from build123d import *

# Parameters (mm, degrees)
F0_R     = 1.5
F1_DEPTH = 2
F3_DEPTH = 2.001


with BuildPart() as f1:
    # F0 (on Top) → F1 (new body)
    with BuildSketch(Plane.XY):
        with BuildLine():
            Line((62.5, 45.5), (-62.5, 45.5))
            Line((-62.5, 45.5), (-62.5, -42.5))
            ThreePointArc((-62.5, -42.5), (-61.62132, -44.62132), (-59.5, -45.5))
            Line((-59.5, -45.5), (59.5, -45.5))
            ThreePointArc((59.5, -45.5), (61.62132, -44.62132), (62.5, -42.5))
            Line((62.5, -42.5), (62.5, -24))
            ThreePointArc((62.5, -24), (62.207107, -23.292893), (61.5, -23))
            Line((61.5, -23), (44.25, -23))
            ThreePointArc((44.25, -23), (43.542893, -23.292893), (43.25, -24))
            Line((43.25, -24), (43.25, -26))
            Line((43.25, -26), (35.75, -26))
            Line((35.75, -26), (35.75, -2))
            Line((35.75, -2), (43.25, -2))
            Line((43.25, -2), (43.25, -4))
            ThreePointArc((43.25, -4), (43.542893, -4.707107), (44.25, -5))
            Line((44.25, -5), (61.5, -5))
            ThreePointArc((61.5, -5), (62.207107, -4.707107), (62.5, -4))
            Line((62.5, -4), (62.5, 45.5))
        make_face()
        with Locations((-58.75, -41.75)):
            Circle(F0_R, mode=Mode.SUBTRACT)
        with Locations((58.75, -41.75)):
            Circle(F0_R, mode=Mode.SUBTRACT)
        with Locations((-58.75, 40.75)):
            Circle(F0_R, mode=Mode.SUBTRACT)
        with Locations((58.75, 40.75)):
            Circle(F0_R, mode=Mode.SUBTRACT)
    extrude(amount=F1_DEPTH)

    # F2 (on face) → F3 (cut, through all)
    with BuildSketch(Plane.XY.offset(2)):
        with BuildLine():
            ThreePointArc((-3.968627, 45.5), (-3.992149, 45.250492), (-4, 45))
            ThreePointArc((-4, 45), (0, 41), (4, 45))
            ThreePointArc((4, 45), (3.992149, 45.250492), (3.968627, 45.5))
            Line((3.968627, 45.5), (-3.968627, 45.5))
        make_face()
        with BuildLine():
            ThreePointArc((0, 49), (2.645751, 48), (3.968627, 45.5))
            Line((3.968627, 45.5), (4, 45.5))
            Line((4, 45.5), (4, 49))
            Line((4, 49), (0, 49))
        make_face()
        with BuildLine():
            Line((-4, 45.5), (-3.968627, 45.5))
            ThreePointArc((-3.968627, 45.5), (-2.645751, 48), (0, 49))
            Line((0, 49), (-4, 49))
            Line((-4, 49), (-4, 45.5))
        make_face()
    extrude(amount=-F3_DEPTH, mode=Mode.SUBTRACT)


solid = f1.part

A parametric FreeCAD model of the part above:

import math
import FreeCAD as App
import Part
import Sketcher
from FreeCAD import Vector

doc = App.newDocument("Part")
body = doc.addObject("PartDesign::Body", "Body")

# Sketch on XY plane
sketch1 = body.newObject("Sketcher::SketchObject", "Sketch")
sketch1.AttachmentSupport = (doc.getObject("XY_Plane"), [""])
sketch1.MapMode = "FlatFace"
sketch1.addGeometry([
    Part.LineSegment(Vector(62.5, 45.5, 0), Vector(-62.5, 45.5, 0)),  # 0
    Part.LineSegment(Vector(-62.5, 45.5, 0), Vector(-62.5, -42.5, 0)),  # 1
    Part.ArcOfCircle(Part.Circle(Vector(-59.5, -42.5, 0), Vector(0, 0, 1), 3), math.radians(-180), math.radians(-90)),  # 2
    Part.LineSegment(Vector(-59.5, -45.5, 0), Vector(59.5, -45.5, 0)),  # 3
    Part.ArcOfCircle(Part.Circle(Vector(59.5, -42.5, 0), Vector(0, 0, 1), 3), math.radians(-90), math.radians(0)),  # 4
    Part.LineSegment(Vector(62.5, -42.5, 0), Vector(62.5, -24, 0)),  # 5
    Part.ArcOfCircle(Part.Circle(Vector(61.5, -24, 0), Vector(0, 0, 1), 1), math.radians(0), math.radians(90)),  # 6
    Part.LineSegment(Vector(61.5, -23, 0), Vector(44.2, -23, 0)),  # 7
    Part.ArcOfCircle(Part.Circle(Vector(44.2, -24, 0), Vector(0, 0, 1), 1), math.radians(90), math.radians(180)),  # 8
    Part.LineSegment(Vector(43.2, -24, 0), Vector(43.2, -26, 0)),  # 9
    Part.LineSegment(Vector(43.2, -26, 0), Vector(35.8, -26, 0)),  # 10
    Part.LineSegment(Vector(35.8, -26, 0), Vector(35.8, -2, 0)),  # 11
    Part.LineSegment(Vector(35.8, -2, 0), Vector(43.2, -2, 0)),  # 12
    Part.LineSegment(Vector(43.2, -2, 0), Vector(43.2, -4, 0)),  # 13
    Part.ArcOfCircle(Part.Circle(Vector(44.2, -4, 0), Vector(0, 0, 1), 1), math.radians(180), math.radians(270)),  # 14
    Part.LineSegment(Vector(44.2, -5, 0), Vector(61.5, -5, 0)),  # 15
    Part.ArcOfCircle(Part.Circle(Vector(61.5, -4, 0), Vector(0, 0, 1), 1), math.radians(-90), math.radians(0)),  # 16
    Part.LineSegment(Vector(62.5, -4, 0), Vector(62.5, 45.5, 0)),  # 17
    Part.Circle(Vector(-58.8, -41.8, 0), Vector(0, 0, 1), 1.5),  # 18
    Part.Circle(Vector(58.8, -41.8, 0), Vector(0, 0, 1), 1.5),  # 19
    Part.Circle(Vector(-58.8, 40.8, 0), Vector(0, 0, 1), 1.5),  # 20
    Part.Circle(Vector(58.8, 40.8, 0), Vector(0, 0, 1), 1.5),  # 21
], False)
sketch1.addConstraint([
    Sketcher.Constraint("Coincident", 0, 2, 1, 1),
    Sketcher.Constraint("Tangent", 1, 2, 2, 1),
    Sketcher.Constraint("Tangent", 2, 2, 3, 1),
    Sketcher.Constraint("Tangent", 3, 2, 4, 1),
    Sketcher.Constraint("Tangent", 4, 2, 5, 1),
    Sketcher.Constraint("Tangent", 5, 2, 6, 1),
    Sketcher.Constraint("Tangent", 6, 2, 7, 1),
    Sketcher.Constraint("Tangent", 7, 2, 8, 1),
    Sketcher.Constraint("Tangent", 8, 2, 9, 1),
    Sketcher.Constraint("Coincident", 9, 2, 10, 1),
    Sketcher.Constraint("Coincident", 10, 2, 11, 1),
    Sketcher.Constraint("Coincident", 11, 2, 12, 1),
    Sketcher.Constraint("Coincident", 12, 2, 13, 1),
    Sketcher.Constraint("Tangent", 13, 2, 14, 1),
    Sketcher.Constraint("Tangent", 14, 2, 15, 1),
    Sketcher.Constraint("Tangent", 15, 2, 16, 1),
    Sketcher.Constraint("Tangent", 16, 2, 17, 1),
    Sketcher.Constraint("Coincident", 17, 2, 0, 1),
    Sketcher.Constraint("Horizontal", 0),
    Sketcher.Constraint("Vertical", 1),
    Sketcher.Constraint("Horizontal", 3),
    Sketcher.Constraint("Vertical", 5),
    Sketcher.Constraint("Horizontal", 7),
    Sketcher.Constraint("Vertical", 9),
    Sketcher.Constraint("Horizontal", 10),
    Sketcher.Constraint("Vertical", 11),
    Sketcher.Constraint("Horizontal", 12),
    Sketcher.Constraint("Vertical", 13),
    Sketcher.Constraint("Horizontal", 15),
    Sketcher.Constraint("Vertical", 17),
    Sketcher.Constraint("Equal", 2, 4),
    Sketcher.Constraint("Equal", 6, 8),
    Sketcher.Constraint("Equal", 8, 14),
    Sketcher.Constraint("Equal", 14, 16),
    Sketcher.Constraint("Equal", 18, 19),
    Sketcher.Constraint("Equal", 19, 20),
    Sketcher.Constraint("Equal", 20, 21),
    Sketcher.Constraint("Symmetric", 18, 3, 19, 3, -2),
    Sketcher.Constraint("Symmetric", 20, 3, 21, 3, -2),
    Sketcher.Constraint("Vertical", 8, 3, 14, 3),
    Sketcher.Constraint("Vertical", 6, 3, 16, 3),
    Sketcher.Constraint("Vertical", 18, 3, 20, 3),
    Sketcher.Constraint("Equal", 9, 13),
    Sketcher.Constraint("Diameter", 18, 3.0),
    Sketcher.Constraint("Radius", 2, 3.000001),
    Sketcher.Constraint("Radius", 6, 0.999999),
    Sketcher.Constraint("DistanceX", 0, 2, 0, 1, 125.0),
    Sketcher.Constraint("DistanceY", 1, 2, 1, 1, 88.0),
    Sketcher.Constraint("DistanceY", 9, 2, 9, 1, 2.0),
    Sketcher.Constraint("DistanceY", 11, 1, 11, 2, 24.0),
    Sketcher.Constraint("DistanceX", 10, 2, 10, 1, 7.5),
    Sketcher.Constraint("DistanceY", 5, 1, 5, 2, 18.5),
    Sketcher.Constraint("DistanceY", 6, 3, -1, 1, 23.999999),
    Sketcher.Constraint("DistanceX", 18, 3, 8, 3, 102.999999),
    Sketcher.Constraint("DistanceX", 7, 2, 7, 1, 17.25),
    Sketcher.Constraint("DistanceX", 2, 3, -1, 1, 59.499999),
    Sketcher.Constraint("DistanceY", 18, 3, 20, 3, 82.5),
    Sketcher.Constraint("DistanceY", 18, 3, -1, 1, 41.75),
])
pad1 = body.newObject("PartDesign::Pad", "Pad")
pad1.Profile = sketch1
pad1.Length = 2

# Sketch on XY plane
sketch2 = body.newObject("Sketcher::SketchObject", "Sketch001")
sketch2.AttachmentSupport = (doc.getObject("XY_Plane"), [""])
sketch2.MapMode = "FlatFace"
sketch2.AttachmentOffset = App.Placement(Vector(0, 0, 2), App.Rotation())
sketch2.addGeometry([
    Part.ArcOfCircle(Part.Circle(Vector(0, 45, 0), Vector(0, 0, 1), 4), math.radians(172.82), math.radians(180)),  # 0
    Part.ArcOfCircle(Part.Circle(Vector(0, 45, 0), Vector(0, 0, 1), 4), math.radians(180), math.radians(360)),  # 1
    Part.ArcOfCircle(Part.Circle(Vector(0, 45, 0), Vector(0, 0, 1), 4), math.radians(0), math.radians(7.18)),  # 2
    Part.LineSegment(Vector(3.969, 45.5, 0), Vector(-3.969, 45.5, 0)),  # 3
    Part.ArcOfCircle(Part.Circle(Vector(0, 45, 0), Vector(0, 0, 1), 4), math.radians(7), math.radians(90)),  # 4
    Part.LineSegment(Vector(3.969, 45.5, 0), Vector(4, 45.5, 0)),  # 5
    Part.LineSegment(Vector(4, 45.5, 0), Vector(4, 49, 0)),  # 6
    Part.LineSegment(Vector(4, 49, 0), Vector(0, 49, 0)),  # 7
    Part.LineSegment(Vector(-4, 45.5, 0), Vector(-3.969, 45.5, 0)),  # 8
    Part.ArcOfCircle(Part.Circle(Vector(0, 45, 0), Vector(0, 0, 1), 4), math.radians(90), math.radians(173)),  # 9
    Part.LineSegment(Vector(0, 49, 0), Vector(-4, 49, 0)),  # 10
    Part.LineSegment(Vector(-4, 49, 0), Vector(-4, 45.5, 0)),  # 11
], False)
sketch2.addConstraint([
    Sketcher.Constraint("Tangent", 0, 2, 1, 1),
    Sketcher.Constraint("Tangent", 1, 2, 2, 1),
    Sketcher.Constraint("Coincident", 2, 2, 3, 1),
    Sketcher.Constraint("Coincident", 3, 2, 0, 1),
    Sketcher.Constraint("Coincident", 4, 1, 5, 1),
    Sketcher.Constraint("Coincident", 5, 2, 6, 1),
    Sketcher.Constraint("Coincident", 6, 2, 7, 1),
    Sketcher.Constraint("Tangent", 7, 2, 4, 2),
    Sketcher.Constraint("Coincident", 8, 2, 9, 2),
    Sketcher.Constraint("Tangent", 9, 1, 10, 1),
    Sketcher.Constraint("Coincident", 10, 2, 11, 1),
    Sketcher.Constraint("Coincident", 11, 2, 8, 1),
    Sketcher.Constraint("Horizontal", 3),
    Sketcher.Constraint("Horizontal", 5),
    Sketcher.Constraint("Vertical", 6),
    Sketcher.Constraint("Horizontal", 7),
    Sketcher.Constraint("Horizontal", 8),
    Sketcher.Constraint("Horizontal", 10),
    Sketcher.Constraint("Vertical", 11),
    Sketcher.Constraint("Coincident", 4, 3, 1, 3),
    Sketcher.Constraint("Coincident", 9, 3, 1, 3),
    Sketcher.Constraint("Coincident", 4, 1, 2, 2),
    Sketcher.Constraint("Coincident", 8, 2, 3, 2),
    Sketcher.Constraint("Equal", 0, 2),
    Sketcher.Constraint("Equal", 1, 4),
    Sketcher.Constraint("Symmetric", 0, 2, 1, 2, -2),
    Sketcher.Constraint("Horizontal", 9, 3, 0, 2),
    Sketcher.Constraint("Vertical", 1, 2, 5, 2),
    Sketcher.Constraint("Vertical", 0, 2, 10, 2),
    Sketcher.Constraint("Radius", 1, 4.0),
    Sketcher.Constraint("DistanceY", 6, 1, 6, 2, 3.5),
    Sketcher.Constraint("DistanceY", -1, 1, 0, 3, 44.999999),
])
pocket1 = body.newObject("PartDesign::Pocket", "Pocket")
pocket1.Profile = sketch2
pocket1.Type = "ThroughAll"

doc.recompute()
